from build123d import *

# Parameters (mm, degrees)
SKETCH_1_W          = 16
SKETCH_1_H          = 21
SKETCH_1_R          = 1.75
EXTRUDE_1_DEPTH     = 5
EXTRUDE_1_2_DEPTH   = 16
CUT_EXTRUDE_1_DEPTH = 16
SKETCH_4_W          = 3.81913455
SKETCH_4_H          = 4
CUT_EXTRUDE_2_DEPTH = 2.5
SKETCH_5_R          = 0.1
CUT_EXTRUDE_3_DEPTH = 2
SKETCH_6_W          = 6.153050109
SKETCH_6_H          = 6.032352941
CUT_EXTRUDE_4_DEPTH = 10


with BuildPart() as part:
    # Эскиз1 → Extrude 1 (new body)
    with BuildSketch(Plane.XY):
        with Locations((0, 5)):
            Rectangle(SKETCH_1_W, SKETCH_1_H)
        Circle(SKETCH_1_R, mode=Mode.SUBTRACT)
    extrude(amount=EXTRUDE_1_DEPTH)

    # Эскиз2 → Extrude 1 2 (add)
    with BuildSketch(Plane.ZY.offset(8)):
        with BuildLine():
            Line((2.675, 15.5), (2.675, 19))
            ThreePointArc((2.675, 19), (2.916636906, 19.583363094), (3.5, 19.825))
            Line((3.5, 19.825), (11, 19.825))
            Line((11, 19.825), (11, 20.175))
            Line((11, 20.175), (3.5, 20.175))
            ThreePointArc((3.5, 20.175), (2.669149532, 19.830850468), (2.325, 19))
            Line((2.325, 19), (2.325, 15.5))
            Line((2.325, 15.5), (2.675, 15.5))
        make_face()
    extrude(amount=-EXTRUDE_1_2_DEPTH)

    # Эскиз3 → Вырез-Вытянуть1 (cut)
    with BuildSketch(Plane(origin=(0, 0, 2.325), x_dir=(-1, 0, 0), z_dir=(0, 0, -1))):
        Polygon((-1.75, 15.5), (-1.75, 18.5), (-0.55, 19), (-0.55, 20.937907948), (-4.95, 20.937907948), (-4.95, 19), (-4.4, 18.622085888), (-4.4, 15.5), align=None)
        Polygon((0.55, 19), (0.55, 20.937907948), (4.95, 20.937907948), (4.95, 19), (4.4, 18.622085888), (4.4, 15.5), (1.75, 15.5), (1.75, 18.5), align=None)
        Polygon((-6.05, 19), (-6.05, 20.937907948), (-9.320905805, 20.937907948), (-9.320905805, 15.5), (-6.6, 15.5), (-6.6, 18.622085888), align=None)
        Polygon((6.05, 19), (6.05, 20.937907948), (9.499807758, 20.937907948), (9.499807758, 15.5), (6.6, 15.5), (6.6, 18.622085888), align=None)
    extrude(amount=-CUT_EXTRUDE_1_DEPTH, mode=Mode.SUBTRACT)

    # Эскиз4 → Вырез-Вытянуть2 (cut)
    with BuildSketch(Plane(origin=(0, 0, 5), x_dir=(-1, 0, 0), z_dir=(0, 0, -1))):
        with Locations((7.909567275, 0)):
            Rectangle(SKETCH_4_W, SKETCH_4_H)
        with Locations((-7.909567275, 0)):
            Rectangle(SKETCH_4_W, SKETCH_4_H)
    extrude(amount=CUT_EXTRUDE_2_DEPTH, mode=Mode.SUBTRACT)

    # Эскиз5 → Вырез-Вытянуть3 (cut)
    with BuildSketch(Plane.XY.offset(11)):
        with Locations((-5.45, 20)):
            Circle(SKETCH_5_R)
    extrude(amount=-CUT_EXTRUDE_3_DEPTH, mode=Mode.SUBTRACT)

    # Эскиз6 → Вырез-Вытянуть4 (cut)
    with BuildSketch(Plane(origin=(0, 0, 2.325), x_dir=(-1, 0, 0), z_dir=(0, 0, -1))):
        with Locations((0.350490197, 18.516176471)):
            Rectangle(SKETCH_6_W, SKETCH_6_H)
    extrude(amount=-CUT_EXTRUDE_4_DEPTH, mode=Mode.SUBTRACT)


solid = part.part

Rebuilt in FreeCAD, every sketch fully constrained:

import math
import FreeCAD as App
import Part
import Sketcher

V = App.Vector
Q = App.Units.Quantity

doc = App.newDocument("Part")
body = doc.addObject("PartDesign::Body", "Body")

sketch1 = body.newObject("Sketcher::SketchObject", "Sketch")
sketch1.AttachmentSupport = (doc.getObject("XY_Plane"), [""])
sketch1.MapMode = "FlatFace"
sketch1.addGeometry(Part.LineSegment(V(-8, 15.5, 0), V(-8, -5.5, 0)), False)
sketch1.addGeometry(Part.LineSegment(V(-8, -5.5, 0), V(8, -5.5, 0)), False)
sketch1.addGeometry(Part.LineSegment(V(8, -5.5, 0), V(8, 15.5, 0)), False)
sketch1.addGeometry(Part.LineSegment(V(8, 15.5, 0), V(-8, 15.5, 0)), False)
sketch1.addGeometry(Part.Circle(V(0, 0, 0), V(0, 0, 1), 1.8), False)
sketch1.addConstraint(Sketcher.Constraint("Coincident", 0, 2, 1, 1))
sketch1.addConstraint(Sketcher.Constraint("Coincident", 1, 2, 2, 1))
sketch1.addConstraint(Sketcher.Constraint("Coincident", 2, 2, 3, 1))
sketch1.addConstraint(Sketcher.Constraint("Coincident", 3, 2, 0, 1))
sketch1.addConstraint(Sketcher.Constraint("Vertical", 0))
sketch1.addConstraint(Sketcher.Constraint("Horizontal", 1))
sketch1.addConstraint(Sketcher.Constraint("Vertical", 2))
sketch1.addConstraint(Sketcher.Constraint("Horizontal", 3))
sketch1.addConstraint(Sketcher.Constraint("Coincident", 4, 3, -1, 1))
sketch1.addConstraint(Sketcher.Constraint("Diameter", 4, Q("3.5 mm")))
sketch1.addConstraint(Sketcher.Constraint("DistanceX", 1, 1, 1, 2, Q("16 mm")))
sketch1.addConstraint(Sketcher.Constraint("DistanceY", 0, 2, 0, 1, Q("21 mm")))
sketch1.addConstraint(Sketcher.Constraint("DistanceX", 0, 2, -1, 1, Q("8 mm")))
sketch1.addConstraint(Sketcher.Constraint("DistanceY", 0, 2, -1, 1, Q("5.5 mm")))
pad1 = body.newObject("PartDesign::Pad", "Pad")
pad1.Profile = sketch1
pad1.Length = 5

sketch2 = body.newObject("Sketcher::SketchObject", "Sketch001")
sketch2.AttachmentSupport = (doc.getObject("YZ_Plane"), [""])
sketch2.MapMode = "FlatFace"
sketch2.AttachmentOffset = App.Placement(V(0, 0, -8), App.Rotation())
sketch2.addGeometry(Part.LineSegment(V(15.5, 2.67, 0), V(19, 2.67, 0)), False)
sketch2.addGeometry(Part.ArcOfCircle(Part.Circle(V(19, 3.5, 0), V(0, 0, 1), 0.83), math.radians(-90), math.radians(0)), False)
sketch2.addGeometry(Part.LineSegment(V(19.82, 3.5, 0), V(19.82, 11, 0)), False)
sketch2.addGeometry(Part.LineSegment(V(19.82, 11, 0), V(20.18, 11, 0)), False)
sketch2.addGeometry(Part.LineSegment(V(20.18, 11, 0), V(20.18, 3.5, 0)), False)
sketch2.addGeometry(Part.ArcOfCircle(Part.Circle(V(19, 3.5, 0), V(0, 0, 1), 1.18), math.radians(-90), math.radians(0)), False)
sketch2.addGeometry(Part.LineSegment(V(19, 2.33, 0), V(15.5, 2.33, 0)), False)
sketch2.addGeometry(Part.LineSegment(V(15.5, 2.33, 0), V(15.5, 2.67, 0)), False)
sketch2.addConstraint(Sketcher.Constraint("Tangent", 0, 2, 1, 1))
sketch2.addConstraint(Sketcher.Constraint("Tangent", 1, 2, 2, 1))
sketch2.addConstraint(Sketcher.Constraint("Coincident", 2, 2, 3, 1))
sketch2.addConstraint(Sketcher.Constraint("Coincident", 3, 2, 4, 1))
sketch2.addConstraint(Sketcher.Constraint("Tangent", 4, 2, 5, 2))
sketch2.addConstraint(Sketcher.Constraint("Tangent", 5, 1, 6, 1))
sketch2.addConstraint(Sketcher.Constraint("Coincident", 6, 2, 7, 1))
sketch2.addConstraint(Sketcher.Constraint("Coincident", 7, 2, 0, 1))
sketch2.addConstraint(Sketcher.Constraint("Horizontal", 0))
sketch2.addConstraint(Sketcher.Constraint("Vertical", 2))
sketch2.addConstraint(Sketcher.Constraint("Horizontal", 3))
sketch2.addConstraint(Sketcher.Constraint("Vertical", 4))
sketch2.addConstraint(Sketcher.Constraint("Horizontal", 6))
sketch2.addConstraint(Sketcher.Constraint("Vertical", 7))
sketch2.addConstraint(Sketcher.Constraint("Coincident", 5, 3, 1, 3))
sketch2.addConstraint(Sketcher.Constraint("DistanceX", 0, 1, 0, 2, Q("3.5 mm")))
sketch2.addConstraint(Sketcher.Constraint("DistanceY", 2, 1, 2, 2, Q("7.5 mm")))
sketch2.addConstraint(Sketcher.Constraint("DistanceX", -1, 1, 1, 3, Q("19 mm")))
sketch2.addConstraint(Sketcher.Constraint("DistanceY", -1, 1, 2, 2, Q("11 mm")))
sketch2.addConstraint(Sketcher.Constraint("Radius", 1, Q("0.825 mm")))
sketch2.addConstraint(Sketcher.Constraint("Radius", 5, Q("1.175 mm")))
pad2 = body.newObject("PartDesign::Pad", "Pad001")
pad2.Profile = sketch2
pad2.Length = 16

sketch3 = body.newObject("Sketcher::SketchObject", "Sketch002")
sketch3.AttachmentSupport = (doc.getObject("XY_Plane"), [""])
sketch3.MapMode = "FlatFace"
sketch3.AttachmentOffset = App.Placement(V(0, 0, 2.325), App.Rotation())
sketch3.addGeometry(Part.LineSegment(V(1.8, 15.5, 0), V(1.8, 18.5, 0)), False)
sketch3.addGeometry(Part.LineSegment(V(1.8, 18.5, 0), V(0.6, 19, 0)), False)
sketch3.addGeometry(Part.LineSegment(V(0.6, 19, 0), V(0.6, 20.9, 0)), False)
sketch3.addGeometry(Part.LineSegment(V(0.6, 20.9, 0), V(5, 20.9, 0)), False)
sketch3.addGeometry(Part.LineSegment(V(5, 20.9, 0), V(5, 19, 0)), False)
sketch3.addGeometry(Part.LineSegment(V(5, 19, 0), V(4.4, 18.6, 0)), False)
sketch3.addGeometry(Part.LineSegment(V(4.4, 18.6, 0), V(4.4, 15.5, 0)), False)
sketch3.addGeometry(Part.LineSegment(V(4.4, 15.5, 0), V(1.8, 15.5, 0)), False)
sketch3.addGeometry(Part.LineSegment(V(-0.6, 20.9, 0), V(-0.6, 19, 0)), False)
sketch3.addGeometry(Part.LineSegment(V(-0.6, 19, 0), V(-1.8, 18.5, 0)), False)
sketch3.addGeometry(Part.LineSegment(V(-1.8, 18.5, 0), V(-1.8, 15.5, 0)), False)
sketch3.addGeometry(Part.LineSegment(V(-1.8, 15.5, 0), V(-4.4, 15.5, 0)), False)
sketch3.addGeometry(Part.LineSegment(V(-4.4, 15.5, 0), V(-4.4, 18.6, 0)), False)
sketch3.addGeometry(Part.LineSegment(V(-4.4, 18.6, 0), V(-5, 19, 0)), False)
sketch3.addGeometry(Part.LineSegment(V(-5, 19, 0), V(-5, 20.9, 0)), False)
sketch3.addGeometry(Part.LineSegment(V(-5, 20.9, 0), V(-0.6, 20.9, 0)), False)
sketch3.addGeometry(Part.LineSegment(V(6, 19, 0), V(6, 20.9, 0)), False)
sketch3.addGeometry(Part.LineSegment(V(6, 20.9, 0), V(9.3, 20.9, 0)), False)
sketch3.addGeometry(Part.LineSegment(V(9.3, 20.9, 0), V(9.3, 15.5, 0)), False)
sketch3.addGeometry(Part.LineSegment(V(9.3, 15.5, 0), V(6.6, 15.5, 0)), False)
sketch3.addGeometry(Part.LineSegment(V(6.6, 15.5, 0), V(6.6, 18.6, 0)), False)
sketch3.addGeometry(Part.LineSegment(V(6.6, 18.6, 0), V(6, 19, 0)), False)
sketch3.addGeometry(Part.LineSegment(V(-6, 20.9, 0), V(-6, 19, 0)), False)
sketch3.addGeometry(Part.LineSegment(V(-6, 19, 0), V(-6.6, 18.6, 0)), False)
sketch3.addGeometry(Part.LineSegment(V(-6.6, 18.6, 0), V(-6.6, 15.5, 0)), False)
sketch3.addGeometry(Part.LineSegment(V(-6.6, 15.5, 0), V(-9.5, 15.5, 0)), False)
sketch3.addGeometry(Part.LineSegment(V(-9.5, 15.5, 0), V(-9.5, 20.9, 0)), False)
sketch3.addGeometry(Part.LineSegment(V(-9.5, 20.9, 0), V(-6, 20.9, 0)), False)
sketch3.addConstraint(Sketcher.Constraint("Coincident", 0, 2, 1, 1))
sketch3.addConstraint(Sketcher.Constraint("Coincident", 1, 2, 2, 1))
sketch3.addConstraint(Sketcher.Constraint("Coincident", 2, 2, 3, 1))
sketch3.addConstraint(Sketcher.Constraint("Coincident", 3, 2, 4, 1))
sketch3.addConstraint(Sketcher.Constraint("Coincident", 4, 2, 5, 1))
sketch3.addConstraint(Sketcher.Constraint("Coincident", 5, 2, 6, 1))
sketch3.addConstraint(Sketcher.Constraint("Coincident", 6, 2, 7, 1))
sketch3.addConstraint(Sketcher.Constraint("Coincident", 7, 2, 0, 1))
sketch3.addConstraint(Sketcher.Constraint("Coincident", 8, 2, 9, 1))
sketch3.addConstraint(Sketcher.Constraint("Coincident", 9, 2, 10, 1))
sketch3.addConstraint(Sketcher.Constraint("Coincident", 10, 2, 11, 1))
sketch3.addConstraint(Sketcher.Constraint("Coincident", 11, 2, 12, 1))
sketch3.addConstraint(Sketcher.Constraint("Coincident", 12, 2, 13, 1))
sketch3.addConstraint(Sketcher.Constraint("Coincident", 13, 2, 14, 1))
sketch3.addConstraint(Sketcher.Constraint("Coincident", 14, 2, 15, 1))
sketch3.addConstraint(Sketcher.Constraint("Coincident", 15, 2, 8, 1))
sketch3.addConstraint(Sketcher.Constraint("Coincident", 16, 2, 17, 1))
sketch3.addConstraint(Sketcher.Constraint("Coincident", 17, 2, 18, 1))
sketch3.addConstraint(Sketcher.Constraint("Coincident", 18, 2, 19, 1))
sketch3.addConstraint(Sketcher.Constraint("Coincident", 19, 2, 20, 1))
sketch3.addConstraint(Sketcher.Constraint("Coincident", 20, 2, 21, 1))
sketch3.addConstraint(Sketcher.Constraint("Coincident", 21, 2, 16, 1))
sketch3.addConstraint(Sketcher.Constraint("Coincident", 22, 2, 23, 1))
sketch3.addConstraint(Sketcher.Constraint("Coincident", 23, 2, 24, 1))
sketch3.addConstraint(Sketcher.Constraint("Coincident", 24, 2, 25, 1))
sketch3.addConstraint(Sketcher.Constraint("Coincident", 25, 2, 26, 1))
sketch3.addConstraint(Sketcher.Constraint("Coincident", 26, 2, 27, 1))
sketch3.addConstraint(Sketcher.Constraint("Coincident", 27, 2, 22, 1))
sketch3.addConstraint(Sketcher.Constraint("Vertical", 0))
sketch3.addConstraint(Sketcher.Constraint("Vertical", 2))
sketch3.addConstraint(Sketcher.Constraint("Horizontal", 3))
sketch3.addConstraint(Sketcher.Constraint("Vertical", 4))
sketch3.addConstraint(Sketcher.Constraint("Vertical", 6))
sketch3.addConstraint(Sketcher.Constraint("Horizontal", 7))
sketch3.addConstraint(Sketcher.Constraint("Vertical", 8))
sketch3.addConstraint(Sketcher.Constraint("Vertical", 10))
sketch3.addConstraint(Sketcher.Constraint("Horizontal", 11))
sketch3.addConstraint(Sketcher.Constraint("Vertical", 12))
sketch3.addConstraint(Sketcher.Constraint("Vertical", 14))
sketch3.addConstraint(Sketcher.Constraint("Horizontal", 15))
sketch3.addConstraint(Sketcher.Constraint("Vertical", 16))
sketch3.addConstraint(Sketcher.Constraint("Horizontal", 17))
sketch3.addConstraint(Sketcher.Constraint("Vertical", 18))
sketch3.addConstraint(Sketcher.Constraint("Horizontal", 19))
sketch3.addConstraint(Sketcher.Constraint("Vertical", 20))
sketch3.addConstraint(Sketcher.Constraint("Vertical", 22))
sketch3.addConstraint(Sketcher.Constraint("Vertical", 24))
sketch3.addConstraint(Sketcher.Constraint("Horizontal", 25))
sketch3.addConstraint(Sketcher.Constraint("Vertical", 26))
sketch3.addConstraint(Sketcher.Constraint("Horizontal", 27))
sketch3.addConstraint(Sketcher.Constraint("Symmetric", 1, 2, 8, 2, -2))
sketch3.addConstraint(Sketcher.Constraint("Symmetric", 0, 2, 9, 2, -2))
sketch3.addConstraint(Sketcher.Constraint("Symmetric", 6, 2, 11, 2, -2))
sketch3.addConstraint(Sketcher.Constraint("Symmetric", 4, 2, 13, 2, -2))
sketch3.addConstraint(Sketcher.Constraint("Symmetric", 21, 2, 22, 2, -2))
sketch3.addConstraint(Sketcher.Constraint("Symmetric", 20, 2, 23, 2, -2))
sketch3.addConstraint(Sketcher.Constraint("Parallel", 13, 21))
sketch3.addConstraint(Sketcher.Constraint("Parallel", 5, 23))
sketch3.addConstraint(Sketcher.Constraint("Horizontal", 1, 2, 4, 2))
sketch3.addConstraint(Sketcher.Constraint("Horizontal", 3, 2, 14, 2))
sketch3.addConstraint(Sketcher.Constraint("Horizontal", 15, 2, 16, 2))
sketch3.addConstraint(Sketcher.Constraint("Horizontal", 11, 2, 18, 2))
sketch3.addConstraint(Sketcher.Constraint("Horizontal", 12, 2, 20, 2))
sketch3.addConstraint(Sketcher.Constraint("Horizontal", 13, 2, 21, 2))
sketch3.addConstraint(Sketcher.Constraint("Horizontal", 19, 2, 24, 2))
sketch3.addConstraint(Sketcher.Constraint("Horizontal", 17, 2, 26, 2))
sketch3.addConstraint(Sketcher.Constraint("DistanceY", 0, 1, 0, 2, Q("3 mm")))
sketch3.addConstraint(Sketcher.Constraint("DistanceX", 3, 1, 3, 2, Q("4.4 mm")))
sketch3.addConstraint(Sketcher.Constraint("DistanceY", -1, 1, 1, 2, Q("19 mm")))
sketch3.addConstraint(Sketcher.Constraint("Distance", 1, Q("1.3 mm")))
sketch3.addConstraint(Sketcher.Constraint("DistanceX", 7, 2, 7, 1, Q("2.65 mm")))
sketch3.addConstraint(Sketcher.Constraint("DistanceY", -1, 1, 0, 2, Q("18.5 mm")))
sketch3.addConstraint(Sketcher.Constraint("DistanceX", -1, 1, 5, 2, Q("4.4 mm")))
sketch3.addConstraint(Sketcher.Constraint("DistanceX", -1, 1, 19, 2, Q("6.6 mm")))
sketch3.addConstraint(Sketcher.Constraint("DistanceX", 17, 1, 17, 2, Q("3.270906 mm")))
sketch3.addConstraint(Sketcher.Constraint("DistanceX", 25, 2, 25, 1, Q("2.899808 mm")))
sketch3.addConstraint(Sketcher.Constraint("DistanceY", 2, 1, 2, 2, Q("1.937908 mm")))
sketch3.addConstraint(Sketcher.Constraint("DistanceY", 6, 2, 6, 1, Q("3.122086 mm")))
pocket1 = body.newObject("PartDesign::Pocket", "Pocket")
pocket1.Profile = sketch3
pocket1.Length = 16
pocket1.Reversed = True

sketch4 = body.newObject("Sketcher::SketchObject", "Sketch003")
sketch4.AttachmentSupport = (doc.getObject("XY_Plane"), [""])
sketch4.MapMode = "FlatFace"
sketch4.AttachmentOffset = App.Placement(V(0, 0, 5), App.Rotation())
sketch4.addGeometry(Part.LineSegment(V(-6, 2, 0), V(-6, -2, 0)), False)
sketch4.addGeometry(Part.LineSegment(V(-6, -2, 0), V(-9.8, -2, 0)), False)
sketch4.addGeometry(Part.LineSegment(V(-9.8, -2, 0), V(-9.8, 2, 0)), False)
sketch4.addGeometry(Part.LineSegment(V(-9.8, 2, 0), V(-6, 2, 0)), False)
sketch4.addGeometry(Part.LineSegment(V(9.8, 2, 0), V(9.8, -2, 0)), False)
sketch4.addGeometry(Part.LineSegment(V(9.8, -2, 0), V(6, -2, 0)), False)
sketch4.addGeometry(Part.LineSegment(V(6, -2, 0), V(6, 2, 0)), False)
sketch4.addGeometry(Part.LineSegment(V(6, 2, 0), V(9.8, 2, 0)), False)
sketch4.addConstraint(Sketcher.Constraint("Coincident", 0, 2, 1, 1))
sketch4.addConstraint(Sketcher.Constraint("Coincident", 1, 2, 2, 1))
sketch4.addConstraint(Sketcher.Constraint("Coincident", 2, 2, 3, 1))
sketch4.addConstraint(Sketcher.Constraint("Coincident", 3, 2, 0, 1))
sketch4.addConstraint(Sketcher.Constraint("Coincident", 4, 2, 5, 1))
sketch4.addConstraint(Sketcher.Constraint("Coincident", 5, 2, 6, 1))
sketch4.addConstraint(Sketcher.Constraint("Coincident", 6, 2, 7, 1))
sketch4.addConstraint(Sketcher.Constraint("Coincident", 7, 2, 4, 1))
sketch4.addConstraint(Sketcher.Constraint("Vertical", 0))
sketch4.addConstraint(Sketcher.Constraint("Horizontal", 1))
sketch4.addConstraint(Sketcher.Constraint("Vertical", 2))
sketch4.addConstraint(Sketcher.Constraint("Horizontal", 3))
sketch4.addConstraint(Sketcher.Constraint("Vertical", 4))
sketch4.addConstraint(Sketcher.Constraint("Horizontal", 5))
sketch4.addConstraint(Sketcher.Constraint("Vertical", 6))
sketch4.addConstraint(Sketcher.Constraint("Horizontal", 7))
sketch4.addConstraint(Sketcher.Constraint("Symmetric", 2, 2, 4, 2, -1, 1))
sketch4.addConstraint(Sketcher.Constraint("Symmetric", 0, 2, 6, 2, -1, 1))
sketch4.addConstraint(Sketcher.Constraint("Horizontal", 1, 2, 4, 2))
sketch4.addConstraint(Sketcher.Constraint("DistanceY", 0, 2, 0, 1, Q("4 mm")))
sketch4.addConstraint(Sketcher.Constraint("DistanceX", 0, 2, -1, 1, Q("6 mm")))
sketch4.addConstraint(Sketcher.Constraint("DistanceX", 1, 2, 1, 1, Q("3.819135 mm")))
pocket2 = body.newObject("PartDesign::Pocket", "Pocket001")
pocket2.Profile = sketch4
pocket2.Length = 2.5

sketch5 = body.newObject("Sketcher::SketchObject", "Sketch004")
sketch5.AttachmentSupport = (doc.getObject("XY_Plane"), [""])
sketch5.MapMode = "FlatFace"
sketch5.AttachmentOffset = App.Placement(V(0, 0, 11), App.Rotation())
sketch5.addGeometry(Part.Circle(V(-5.45, 20, 0), V(0, 0, 1), 0.1), False)
sketch5.addConstraint(Sketcher.Constraint("Diameter", 0, Q("0.2 mm")))
sketch5.addConstraint(Sketcher.Constraint("DistanceY", -1, 1, 0, 3, Q("20 mm")))
sketch5.addConstraint(Sketcher.Constraint("DistanceX", 0, 3, -1, 1, Q("5.45 mm")))
pocket3 = body.newObject("PartDesign::Pocket", "Pocket002")
pocket3.Profile = sketch5
pocket3.Length = 2

sketch6 = body.newObject("Sketcher::SketchObject", "Sketch005")
sketch6.AttachmentSupport = (doc.getObject("XY_Plane"), [""])
sketch6.MapMode = "FlatFace"
sketch6.AttachmentOffset = App.Placement(V(0, 0, 2.325), App.Rotation())
sketch6.addGeometry(Part.LineSegment(V(3, 22, 0), V(3, 16, 0)), False)
sketch6.addGeometry(Part.LineSegment(V(3, 16, 0), V(-3, 16, 0)), False)
sketch6.addGeometry(Part.LineSegment(V(-3, 16, 0), V(-3, 22, 0)), False)
sketch6.addGeometry(Part.LineSegment(V(-3, 22, 0), V(3, 22, 0)), False)
sketch6.addConstraint(Sketcher.Constraint("Coincident", 0, 2, 1, 1))
sketch6.addConstraint(Sketcher.Constraint("Coincident", 1, 2, 2, 1))
sketch6.addConstraint(Sketcher.Constraint("Coincident", 2, 2, 3, 1))
sketch6.addConstraint(Sketcher.Constraint("Coincident", 3, 2, 0, 1))
sketch6.addConstraint(Sketcher.Constraint("Vertical", 0))
sketch6.addConstraint(Sketcher.Constraint("Horizontal", 1))
sketch6.addConstraint(Sketcher.Constraint("Vertical", 2))
sketch6.addConstraint(Sketcher.Constraint("Horizontal", 3))
sketch6.addConstraint(Sketcher.Constraint("DistanceY", -1, 1, 0, 2, Q("15.5 mm")))
sketch6.addConstraint(Sketcher.Constraint("DistanceX", 1, 2, 1, 1, Q("6.15305 mm")))
sketch6.addConstraint(Sketcher.Constraint("DistanceY", 0, 2, 0, 1, Q("6.032353 mm")))
sketch6.addConstraint(Sketcher.Constraint("DistanceX", -1, 1, 0, 2, Q("2.726035 mm")))
pocket4 = body.newObject("PartDesign::Pocket", "Pocket003")
pocket4.Profile = sketch6
pocket4.Length = 10
pocket4.Reversed = True

doc.recompute()
